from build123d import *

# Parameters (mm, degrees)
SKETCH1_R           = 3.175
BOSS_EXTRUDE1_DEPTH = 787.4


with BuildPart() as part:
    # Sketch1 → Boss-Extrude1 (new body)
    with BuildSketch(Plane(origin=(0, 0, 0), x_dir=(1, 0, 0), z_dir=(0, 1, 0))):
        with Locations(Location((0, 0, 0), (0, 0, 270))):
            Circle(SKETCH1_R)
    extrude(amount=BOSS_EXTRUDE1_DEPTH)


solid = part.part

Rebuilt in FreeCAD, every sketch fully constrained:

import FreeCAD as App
import Part
import Sketcher
Q = App.Units.Quantity

doc = App.newDocument("Part")
body = doc.addObject("PartDesign::Body", "Body")

# Sketch on XZ plane
sketch1 = body.newObject("Sketcher::SketchObject", "Sketch")
sketch1.AttachmentSupport = (doc.getObject("XZ_Plane"), [""])
sketch1.MapMode = "FlatFace"
sketch1.addGeometry(Part.Circle(App.Vector(0, 0, 0), App.Vector(0, 0, 1), 3.2), False)
sketch1.addConstraint(Sketcher.Constraint("Coincident", 0, 3, -1, 1))
sketch1.addConstraint(Sketcher.Constraint("Diameter", 0, Q("0.25 in")))
pad1 = body.newObject("PartDesign::Pad", "Pad")
pad1.Profile = sketch1
pad1.Length = Q("31 in")
pad1.Reversed = True

doc.recompute()
